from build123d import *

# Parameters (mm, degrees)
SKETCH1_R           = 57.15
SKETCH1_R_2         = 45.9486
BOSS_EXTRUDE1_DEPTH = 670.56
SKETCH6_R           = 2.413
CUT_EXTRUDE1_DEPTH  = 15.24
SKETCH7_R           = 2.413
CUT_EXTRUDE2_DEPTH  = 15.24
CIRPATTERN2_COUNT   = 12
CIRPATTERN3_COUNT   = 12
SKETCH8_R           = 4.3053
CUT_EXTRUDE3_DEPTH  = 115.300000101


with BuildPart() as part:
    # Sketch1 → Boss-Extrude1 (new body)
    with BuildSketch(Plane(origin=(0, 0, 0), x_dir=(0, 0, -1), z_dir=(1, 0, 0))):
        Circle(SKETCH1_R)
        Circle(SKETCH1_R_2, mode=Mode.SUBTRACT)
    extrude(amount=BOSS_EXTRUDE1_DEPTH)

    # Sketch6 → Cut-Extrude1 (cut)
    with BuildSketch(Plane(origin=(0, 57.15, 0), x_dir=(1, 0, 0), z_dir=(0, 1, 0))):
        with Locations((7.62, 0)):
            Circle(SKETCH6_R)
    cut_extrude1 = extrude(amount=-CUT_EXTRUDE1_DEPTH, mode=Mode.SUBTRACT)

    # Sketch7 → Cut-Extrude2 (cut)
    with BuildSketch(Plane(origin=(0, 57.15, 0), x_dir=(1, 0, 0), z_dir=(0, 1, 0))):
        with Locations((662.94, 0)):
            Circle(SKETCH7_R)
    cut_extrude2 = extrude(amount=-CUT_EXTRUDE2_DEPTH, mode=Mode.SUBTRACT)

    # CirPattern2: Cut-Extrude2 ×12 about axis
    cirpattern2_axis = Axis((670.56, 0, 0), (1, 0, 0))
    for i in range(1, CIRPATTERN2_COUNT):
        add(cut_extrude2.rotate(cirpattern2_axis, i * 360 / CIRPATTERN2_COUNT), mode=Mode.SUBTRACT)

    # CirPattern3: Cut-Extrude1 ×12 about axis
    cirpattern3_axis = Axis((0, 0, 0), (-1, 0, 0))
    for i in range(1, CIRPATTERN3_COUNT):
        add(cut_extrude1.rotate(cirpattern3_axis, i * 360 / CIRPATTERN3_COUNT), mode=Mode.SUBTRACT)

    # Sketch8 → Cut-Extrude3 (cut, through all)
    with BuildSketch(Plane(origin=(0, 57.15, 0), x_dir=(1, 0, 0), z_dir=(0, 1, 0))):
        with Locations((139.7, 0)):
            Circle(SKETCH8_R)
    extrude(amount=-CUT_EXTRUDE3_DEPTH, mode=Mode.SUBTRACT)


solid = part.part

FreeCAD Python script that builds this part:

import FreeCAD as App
import Part
import Sketcher
Q = App.Units.Quantity

doc = App.newDocument("Part")
params = doc.addObject("Spreadsheet::Sheet", "Params")
for row, (alias, value) in enumerate([
    ("sketch1_diameter", "4.5 in"),
    ("sketch1_diameter2", "3.618 in"),
    ("pad1_length", "26.4 in"),
    ("sketch2_diameter", "0.19 in"),
    ("pocket1_length", "0.6 in"),
    ("sketch3_diameter", "0.19 in"),
    ("pocket2_length", "0.6 in"),
    ("sketch4_diameter", "0.339 in"),
], start=1):
    params.set(f"A{row}", alias)
    params.set(f"B{row}", "=" + value)
    params.setAlias(f"B{row}", alias)

body = doc.addObject("PartDesign::Body", "Body")

# Sketch on YZ plane
sketch1 = doc.addObject("Sketcher::SketchObject", "Sketch")
body.addObject(sketch1)
sketch1.AttachmentSupport = (doc.YZ_Plane, [""])
sketch1.MapMode = "FlatFace"
sketch1.addGeometry([
    Part.Circle(App.Vector(0, 0, 0), App.Vector(0, 0, 1), 57),
    Part.Circle(App.Vector(0, 0, 0), App.Vector(0, 0, 1), 46),
], False)
sketch1.addConstraint([
    Sketcher.Constraint("Coincident", 0, 3, -1, 1),
    Sketcher.Constraint("Coincident", 1, 3, -1, 1),
    Sketcher.Constraint("Diameter", 0, Q("4.5 in")),
    Sketcher.Constraint("Diameter", 1, Q("3.618 in")),
])
sketch1.setExpression("Constraints[2]", "Params.sketch1_diameter")
sketch1.setExpression("Constraints[3]", "Params.sketch1_diameter2")
pad1 = doc.addObject("PartDesign::Pad", "Pad")
body.addObject(pad1)
pad1.Profile = sketch1
pad1.setExpression("Length", "Params.pad1_length")

# Sketch on XZ plane
sketch2 = doc.addObject("Sketcher::SketchObject", "Sketch001")
body.addObject(sketch2)
sketch2.AttachmentSupport = (doc.XZ_Plane, [""])
sketch2.MapMode = "FlatFace"
sketch2.AttachmentOffset = App.Placement(App.Vector(0, 0, -2.25 * 25.4), App.Rotation())
sketch2.addGeometry(Part.Circle(App.Vector(7.6, 0, 0), App.Vector(0, 0, 1), 2.4), False)
sketch2.addConstraint([
    Sketcher.Constraint("PointOnObject", 0, 3, -1),
    Sketcher.Constraint("Diameter", 0, Q("0.19 in")),
    Sketcher.Constraint("DistanceX", -1, 1, 0, 3, Q("0.3 in")),
])
sketch2.setExpression("Constraints[1]", "Params.sketch2_diameter")
pocket1 = doc.addObject("PartDesign::Pocket", "Pocket")
body.addObject(pocket1)
pocket1.Profile = sketch2
pocket1.setExpression("Length", "Params.pocket1_length")
pocket1.Reversed = True

# Sketch on XZ plane
sketch3 = doc.addObject("Sketcher::SketchObject", "Sketch002")
body.addObject(sketch3)
sketch3.AttachmentSupport = (doc.XZ_Plane, [""])
sketch3.MapMode = "FlatFace"
sketch3.AttachmentOffset = App.Placement(App.Vector(0, 0, -2.25 * 25.4), App.Rotation())
sketch3.addGeometry(Part.Circle(App.Vector(662.9, 0, 0), App.Vector(0, 0, 1), 2.4), False)
sketch3.addConstraint([
    Sketcher.Constraint("PointOnObject", 0, 3, -1),
    Sketcher.Constraint("Diameter", 0, Q("0.19 in")),
    Sketcher.Constraint("DistanceX", -1, 1, 0, 3, Q("26.1 in")),
])
sketch3.setExpression("Constraints[1]", "Params.sketch3_diameter")
pocket2 = doc.addObject("PartDesign::Pocket", "Pocket001")
body.addObject(pocket2)
pocket2.Profile = sketch3
pocket2.setExpression("Length", "Params.pocket2_length")
pocket2.Reversed = True
doc.recompute()

polarpattern = doc.addObject("PartDesign::PolarPattern", "PolarPattern")
body.addObject(polarpattern)
polarpattern.Originals = [pocket2]
polarpattern.Axis = (doc.X_Axis, [""])
polarpattern.Angle = 360
polarpattern.Occurrences = 12
body.Tip = polarpattern
doc.recompute()

polarpattern2 = doc.addObject("PartDesign::PolarPattern", "PolarPattern001")
body.addObject(polarpattern2)
polarpattern2.Originals = [pocket1]
polarpattern2.Axis = (doc.X_Axis, [""])
polarpattern2.Angle = 360
polarpattern2.Occurrences = 12
body.Tip = polarpattern2

# Sketch on XZ plane
sketch4 = doc.addObject("Sketcher::SketchObject", "Sketch003")
body.addObject(sketch4)
sketch4.AttachmentSupport = (doc.XZ_Plane, [""])
sketch4.MapMode = "FlatFace"
sketch4.AttachmentOffset = App.Placement(App.Vector(0, 0, -2.25 * 25.4), App.Rotation())
sketch4.addGeometry(Part.Circle(App.Vector(139.7, 0, 0), App.Vector(0, 0, 1), 4.3), False)
sketch4.addConstraint([
    Sketcher.Constraint("PointOnObject", 0, 3, -1),
    Sketcher.Constraint("Diameter", 0, Q("0.339 in")),
    Sketcher.Constraint("DistanceX", -1, 1, 0, 3, Q("5.5 in")),
])
sketch4.setExpression("Constraints[1]", "Params.sketch4_diameter")
pocket3 = doc.addObject("PartDesign::Pocket", "Pocket002")
body.addObject(pocket3)
pocket3.Profile = sketch4
pocket3.Type = "ThroughAll"
pocket3.Reversed = True

doc.recompute()
